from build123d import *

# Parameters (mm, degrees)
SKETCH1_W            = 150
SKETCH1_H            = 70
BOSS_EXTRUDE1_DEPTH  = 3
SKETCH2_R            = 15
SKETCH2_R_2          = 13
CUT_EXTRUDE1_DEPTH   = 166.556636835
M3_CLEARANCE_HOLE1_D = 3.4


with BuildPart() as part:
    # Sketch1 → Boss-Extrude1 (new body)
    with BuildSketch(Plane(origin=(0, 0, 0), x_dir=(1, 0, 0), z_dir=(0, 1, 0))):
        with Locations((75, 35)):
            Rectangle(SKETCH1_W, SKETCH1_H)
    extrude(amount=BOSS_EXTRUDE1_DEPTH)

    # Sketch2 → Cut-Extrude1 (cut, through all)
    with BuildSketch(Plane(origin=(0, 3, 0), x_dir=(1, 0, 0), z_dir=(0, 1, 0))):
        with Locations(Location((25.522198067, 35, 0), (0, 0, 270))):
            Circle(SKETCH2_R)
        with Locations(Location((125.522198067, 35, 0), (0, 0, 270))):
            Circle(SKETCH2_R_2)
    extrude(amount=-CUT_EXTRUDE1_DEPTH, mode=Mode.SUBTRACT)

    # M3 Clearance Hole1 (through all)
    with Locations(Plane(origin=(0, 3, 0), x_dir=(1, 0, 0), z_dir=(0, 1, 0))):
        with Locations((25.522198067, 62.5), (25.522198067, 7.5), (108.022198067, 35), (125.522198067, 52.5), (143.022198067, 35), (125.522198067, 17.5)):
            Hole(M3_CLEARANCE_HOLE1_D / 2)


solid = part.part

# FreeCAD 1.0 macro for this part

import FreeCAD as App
import Part
import Sketcher
from FreeCAD import Vector
Q = App.Units.Quantity


def add_polygon(sketch, points):
    """Adds a closed chain of lines whose ends are joined by coincident constraints."""
    first, n = sketch.GeometryCount, len(points)
    for a, b in zip(points, points[1:] + points[:1]):
        sketch.addGeometry(Part.LineSegment(App.Vector(*a, 0), App.Vector(*b, 0)), False)
    for i in range(n):
        sketch.addConstraint(Sketcher.Constraint("Coincident", first + i, 2, first + (i + 1) % n, 1))

doc = App.newDocument("Part")
params = doc.addObject("Spreadsheet::Sheet", "Params")
for row, (alias, value) in enumerate([
    ("sketch1_width", "150 mm"),
    ("sketch1_height", "70 mm"),
    ("pad1_length", "3 mm"),
    ("sketch2_diameter", "30 mm"),
    ("sketch2_diameter2", "26 mm"),
    ("sketch3_diameter", "3.4 mm"),
    ("hole_diameter", "3.4 mm"),
], start=1):
    params.set(f"A{row}", alias)
    params.set(f"B{row}", "=" + value)
    params.setAlias(f"B{row}", alias)

body = doc.addObject("PartDesign::Body", "Body")

# Sketch on XZ plane
sketch1 = body.newObject("Sketcher::SketchObject", "Sketch")
sketch1.AttachmentSupport = (doc.getObject("XZ_Plane"), [""])
sketch1.MapMode = "FlatFace"
add_polygon(sketch1, [(0, -70), (0, 0), (150, 0), (150, -70)])  # lines 0-3
sketch1.addConstraint([
    Sketcher.Constraint("Vertical", 0),
    Sketcher.Constraint("Horizontal", 1),
    Sketcher.Constraint("Vertical", 2),
    Sketcher.Constraint("Horizontal", 3),
    Sketcher.Constraint("Coincident", 0, 2, -1, 1),
    Sketcher.Constraint("DistanceX", 1, 1, 1, 2, Q("150 mm")),
    Sketcher.Constraint("DistanceY", 0, 1, 0, 2, Q("70 mm")),
])
sketch1.setExpression("Constraints[9]", "Params.sketch1_width")
sketch1.setExpression("Constraints[10]", "Params.sketch1_height")
pad1 = body.newObject("PartDesign::Pad", "Pad")
pad1.Profile = sketch1
pad1.setExpression("Length", "Params.pad1_length")
pad1.Reversed = True

# Sketch on XZ plane
sketch2 = body.newObject("Sketcher::SketchObject", "Sketch001")
sketch2.AttachmentSupport = (doc.getObject("XZ_Plane"), [""])
sketch2.MapMode = "FlatFace"
sketch2.AttachmentOffset = App.Placement(Vector(0, 0, -3), App.Rotation())
sketch2.addGeometry([
    Part.Circle(Vector(26, -35, 0), Vector(0, 0, 1), 15),
    Part.Circle(Vector(126, -35, 0), Vector(0, 0, 1), 13),
], False)
sketch2.addConstraint([
    Sketcher.Constraint("Horizontal", 0, 3, 1, 3),
    Sketcher.Constraint("Diameter", 0, Q("30 mm")),
    Sketcher.Constraint("Diameter", 1, Q("26 mm")),
    Sketcher.Constraint("DistanceY", 0, 3, -1, 1, Q("35 mm")),
    Sketcher.Constraint("DistanceX", 0, 3, 1, 3, Q("100 mm")),
    Sketcher.Constraint("DistanceX", -1, 1, 0, 3, Q("25.522198 mm")),
])
sketch2.setExpression("Constraints[1]", "Params.sketch2_diameter")
sketch2.setExpression("Constraints[2]", "Params.sketch2_diameter2")
pocket1 = body.newObject("PartDesign::Pocket", "Pocket")
pocket1.Profile = sketch2
pocket1.Type = "ThroughAll"
pocket1.Reversed = True

# Sketch on XZ plane
sketch3 = body.newObject("Sketcher::SketchObject", "Sketch002")
sketch3.AttachmentSupport = (doc.getObject("XZ_Plane"), [""])
sketch3.MapMode = "FlatFace"
sketch3.AttachmentOffset = App.Placement(Vector(0, 0, -3), App.Rotation())
sketch3.addGeometry([
    Part.Circle(Vector(25.5, -62.5, 0), Vector(0, 0, 1), 1.7),  # 0
    Part.Circle(Vector(25.5, -7.5, 0), Vector(0, 0, 1), 1.7),  # 1
    Part.Circle(Vector(108, -35, 0), Vector(0, 0, 1), 1.7),  # 2
    Part.Circle(Vector(125.5, -52.5, 0), Vector(0, 0, 1), 1.7),  # 3
    Part.Circle(Vector(143, -35, 0), Vector(0, 0, 1), 1.7),  # 4
    Part.Circle(Vector(125.5, -17.5, 0), Vector(0, 0, 1), 1.7),  # 5
], False)
sketch3.addConstraint([
    Sketcher.Constraint("Equal", 0, 1),
    Sketcher.Constraint("Equal", 1, 2),
    Sketcher.Constraint("Equal", 2, 3),
    Sketcher.Constraint("Equal", 3, 4),
    Sketcher.Constraint("Equal", 4, 5),
    Sketcher.Constraint("Horizontal", 2, 3, 4, 3),
    Sketcher.Constraint("Vertical", 0, 3, 1, 3),
    Sketcher.Constraint("Vertical", 3, 3, 5, 3),
    Sketcher.Constraint("Diameter", 0, Q("3.4 mm")),
    Sketcher.Constraint("DistanceY", 2, 3, -1, 1, Q("35 mm")),
    Sketcher.Constraint("DistanceY", 0, 3, 1, 3, Q("55 mm")),
    Sketcher.Constraint("DistanceX", 0, 3, 3, 3, Q("100 mm")),
    Sketcher.Constraint("DistanceY", 0, 3, 3, 3, Q("10 mm")),
    Sketcher.Constraint("DistanceX", 2, 3, 4, 3, Q("35 mm")),
    Sketcher.Constraint("DistanceY", 3, 3, 5, 3, Q("35 mm")),
    Sketcher.Constraint("DistanceY", 0, 3, -1, 1, Q("62.5 mm")),
    Sketcher.Constraint("DistanceX", 0, 3, 2, 3, Q("82.5 mm")),
    Sketcher.Constraint("DistanceX", -1, 1, 0, 3, Q("25.522198 mm")),
])
sketch3.setExpression("Constraints[8]", "Params.sketch3_diameter")
doc.recompute()
hole = body.newObject("PartDesign::Hole", "Hole")
hole.Profile = sketch3
hole.ThreadType = "None"
hole.setExpression("Diameter", "Params.hole_diameter")
hole.DepthType = "ThroughAll"
hole.Reversed = True

doc.recompute()
